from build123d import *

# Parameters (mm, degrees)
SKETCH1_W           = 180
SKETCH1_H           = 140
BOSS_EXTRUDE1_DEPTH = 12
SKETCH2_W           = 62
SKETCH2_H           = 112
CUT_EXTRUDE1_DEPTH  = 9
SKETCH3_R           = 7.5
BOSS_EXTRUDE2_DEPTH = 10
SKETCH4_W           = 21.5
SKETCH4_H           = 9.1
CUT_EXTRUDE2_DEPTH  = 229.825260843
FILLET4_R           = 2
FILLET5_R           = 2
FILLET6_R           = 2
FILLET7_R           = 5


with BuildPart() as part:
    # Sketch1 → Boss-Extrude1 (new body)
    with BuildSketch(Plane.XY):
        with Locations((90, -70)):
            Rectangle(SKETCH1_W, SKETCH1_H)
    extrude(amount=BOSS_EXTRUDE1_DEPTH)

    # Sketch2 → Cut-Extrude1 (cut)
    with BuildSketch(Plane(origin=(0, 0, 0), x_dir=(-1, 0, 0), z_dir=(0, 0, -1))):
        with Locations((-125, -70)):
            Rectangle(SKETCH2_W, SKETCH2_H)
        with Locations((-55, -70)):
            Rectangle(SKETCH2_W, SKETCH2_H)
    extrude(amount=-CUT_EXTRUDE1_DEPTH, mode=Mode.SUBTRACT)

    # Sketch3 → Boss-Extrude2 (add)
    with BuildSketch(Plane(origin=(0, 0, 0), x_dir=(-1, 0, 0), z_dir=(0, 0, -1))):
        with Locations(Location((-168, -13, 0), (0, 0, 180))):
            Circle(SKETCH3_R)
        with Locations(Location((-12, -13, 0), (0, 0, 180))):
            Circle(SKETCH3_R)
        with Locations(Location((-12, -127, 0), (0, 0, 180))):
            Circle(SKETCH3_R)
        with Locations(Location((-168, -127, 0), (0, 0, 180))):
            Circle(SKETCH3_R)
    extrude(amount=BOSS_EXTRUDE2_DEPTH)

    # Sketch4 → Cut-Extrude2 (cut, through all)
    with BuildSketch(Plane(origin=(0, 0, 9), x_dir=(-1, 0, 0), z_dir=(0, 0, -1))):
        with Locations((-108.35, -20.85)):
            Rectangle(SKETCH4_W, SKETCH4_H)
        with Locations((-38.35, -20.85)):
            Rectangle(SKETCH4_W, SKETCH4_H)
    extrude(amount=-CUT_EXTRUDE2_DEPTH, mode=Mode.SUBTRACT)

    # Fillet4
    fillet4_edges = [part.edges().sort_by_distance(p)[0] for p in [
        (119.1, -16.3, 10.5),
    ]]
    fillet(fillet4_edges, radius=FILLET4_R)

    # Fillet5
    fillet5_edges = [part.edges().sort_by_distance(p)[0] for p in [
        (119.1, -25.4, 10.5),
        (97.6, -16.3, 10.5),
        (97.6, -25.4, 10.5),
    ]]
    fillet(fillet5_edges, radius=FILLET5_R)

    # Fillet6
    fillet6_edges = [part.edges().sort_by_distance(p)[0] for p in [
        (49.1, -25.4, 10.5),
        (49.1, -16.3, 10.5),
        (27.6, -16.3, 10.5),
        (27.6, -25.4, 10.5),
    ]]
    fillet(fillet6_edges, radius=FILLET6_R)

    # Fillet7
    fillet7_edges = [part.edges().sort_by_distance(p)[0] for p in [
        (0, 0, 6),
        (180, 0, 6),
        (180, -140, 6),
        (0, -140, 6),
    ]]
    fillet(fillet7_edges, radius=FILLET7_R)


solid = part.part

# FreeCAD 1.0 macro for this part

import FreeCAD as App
import Part
import Sketcher
from FreeCAD import Vector


def edges_at(feature, points):
    """Names of the edges that pass closest to the given points."""
    edges = feature.Shape.Edges
    near = lambda p: min(range(len(edges)), key=lambda i: edges[i].distToShape(Part.Vertex(*p))[0])
    return sorted({f"Edge{near(p) + 1}" for p in points})

doc = App.newDocument("Part")
body = doc.addObject("PartDesign::Body", "Body")

# Sketch on XY plane
sketch1 = body.newObject("Sketcher::SketchObject", "Sketch")
sketch1.AttachmentSupport = (doc.getObject("XY_Plane"), [""])
sketch1.MapMode = "FlatFace"
sketch1.addGeometry([
    Part.LineSegment(Vector(0, 0, 0), Vector(0, -140, 0)),
    Part.LineSegment(Vector(0, -140, 0), Vector(180, -140, 0)),
    Part.LineSegment(Vector(180, -140, 0), Vector(180, 0, 0)),
    Part.LineSegment(Vector(180, 0, 0), Vector(0, 0, 0)),
], False)
sketch1.addConstraint([
    Sketcher.Constraint("Coincident", 0, 2, 1, 1),
    Sketcher.Constraint("Coincident", 1, 2, 2, 1),
    Sketcher.Constraint("Coincident", 2, 2, 3, 1),
    Sketcher.Constraint("Coincident", 3, 2, 0, 1),
    Sketcher.Constraint("Vertical", 0),
    Sketcher.Constraint("Horizontal", 1),
    Sketcher.Constraint("Vertical", 2),
    Sketcher.Constraint("Horizontal", 3),
    Sketcher.Constraint("Coincident", 3, 2, -1, 1),
    Sketcher.Constraint("DistanceX", 1, 1, 1, 2, 180.0),
    Sketcher.Constraint("DistanceY", 0, 2, 0, 1, 140.0),
])
pad1 = body.newObject("PartDesign::Pad", "Pad")
pad1.Profile = sketch1
pad1.Length = 12

# Sketch on XY plane
sketch2 = body.newObject("Sketcher::SketchObject", "Sketch001")
sketch2.AttachmentSupport = (doc.getObject("XY_Plane"), [""])
sketch2.MapMode = "FlatFace"
sketch2.addGeometry([
    Part.LineSegment(Vector(156, -14, 0), Vector(156, -126, 0)),  # 0
    Part.LineSegment(Vector(156, -126, 0), Vector(94, -126, 0)),  # 1
    Part.LineSegment(Vector(94, -126, 0), Vector(94, -14, 0)),  # 2
    Part.LineSegment(Vector(94, -14, 0), Vector(156, -14, 0)),  # 3
    Part.LineSegment(Vector(86, -14, 0), Vector(86, -126, 0)),  # 4
    Part.LineSegment(Vector(86, -126, 0), Vector(24, -126, 0)),  # 5
    Part.LineSegment(Vector(24, -126, 0), Vector(24, -14, 0)),  # 6
    Part.LineSegment(Vector(24, -14, 0), Vector(86, -14, 0)),  # 7
], False)
sketch2.addConstraint([
    Sketcher.Constraint("Coincident", 0, 2, 1, 1),
    Sketcher.Constraint("Coincident", 1, 2, 2, 1),
    Sketcher.Constraint("Coincident", 2, 2, 3, 1),
    Sketcher.Constraint("Coincident", 3, 2, 0, 1),
    Sketcher.Constraint("Coincident", 4, 2, 5, 1),
    Sketcher.Constraint("Coincident", 5, 2, 6, 1),
    Sketcher.Constraint("Coincident", 6, 2, 7, 1),
    Sketcher.Constraint("Coincident", 7, 2, 4, 1),
    Sketcher.Constraint("Vertical", 0),
    Sketcher.Constraint("Horizontal", 1),
    Sketcher.Constraint("Vertical", 2),
    Sketcher.Constraint("Horizontal", 3),
    Sketcher.Constraint("Vertical", 4),
    Sketcher.Constraint("Horizontal", 5),
    Sketcher.Constraint("Vertical", 6),
    Sketcher.Constraint("Horizontal", 7),
    Sketcher.Constraint("Horizontal", 1, 2, 4, 2),
    Sketcher.Constraint("Horizontal", 3, 2, 6, 2),
    Sketcher.Constraint("Equal", 3, 5),
    Sketcher.Constraint("DistanceX", 1, 2, 1, 1, 62.0),
    Sketcher.Constraint("DistanceY", 0, 2, 0, 1, 112.0),
    Sketcher.Constraint("DistanceX", -1, 1, 0, 2, 156.0),
    Sketcher.Constraint("DistanceY", 0, 2, -1, 1, 126.0),
    Sketcher.Constraint("DistanceX", -1, 1, 4, 2, 86.0),
])
pocket1 = body.newObject("PartDesign::Pocket", "Pocket")
pocket1.Profile = sketch2
pocket1.Length = 9
pocket1.Reversed = True

# Sketch on XY plane
sketch3 = body.newObject("Sketcher::SketchObject", "Sketch002")
sketch3.AttachmentSupport = (doc.getObject("XY_Plane"), [""])
sketch3.MapMode = "FlatFace"
sketch3.addGeometry([
    Part.Circle(Vector(168, -13, 0), Vector(0, 0, 1), 8),
    Part.Circle(Vector(12, -13, 0), Vector(0, 0, 1), 8),
    Part.Circle(Vector(12, -127, 0), Vector(0, 0, 1), 8),
    Part.Circle(Vector(168, -127, 0), Vector(0, 0, 1), 8),
], False)
sketch3.addConstraint([
    Sketcher.Constraint("Equal", 0, 1),
    Sketcher.Constraint("Equal", 1, 2),
    Sketcher.Constraint("Equal", 2, 3),
    Sketcher.Constraint("Horizontal", 0, 3, 1, 3),
    Sketcher.Constraint("Horizontal", 2, 3, 3, 3),
    Sketcher.Constraint("Vertical", 1, 3, 2, 3),
    Sketcher.Constraint("Vertical", 0, 3, 3, 3),
    Sketcher.Constraint("Diameter", 0, 15.0),
    Sketcher.Constraint("DistanceX", -1, 1, 0, 3, 168.0),
    Sketcher.Constraint("DistanceY", 0, 3, -1, 1, 13.0),
    Sketcher.Constraint("DistanceX", -1, 1, 1, 3, 12.0),
    Sketcher.Constraint("DistanceY", 2, 3, -1, 1, 127.0),
])
pad2 = body.newObject("PartDesign::Pad", "Pad001")
pad2.Profile = sketch3
pad2.Length = 10
pad2.Reversed = True

# Sketch on XY plane
sketch4 = body.newObject("Sketcher::SketchObject", "Sketch003")
sketch4.AttachmentSupport = (doc.getObject("XY_Plane"), [""])
sketch4.MapMode = "FlatFace"
sketch4.AttachmentOffset = App.Placement(Vector(0, 0, 9), App.Rotation())
sketch4.addGeometry([
    Part.LineSegment(Vector(119, -16, 0), Vector(119, -25, 0)),  # 0
    Part.LineSegment(Vector(119, -25, 0), Vector(98, -25, 0)),  # 1
    Part.LineSegment(Vector(98, -25, 0), Vector(98, -16, 0)),  # 2
    Part.LineSegment(Vector(98, -16, 0), Vector(119, -16, 0)),  # 3
    Part.LineSegment(Vector(49, -16, 0), Vector(49, -25, 0)),  # 4
    Part.LineSegment(Vector(49, -25, 0), Vector(28, -25, 0)),  # 5
    Part.LineSegment(Vector(28, -25, 0), Vector(28, -16, 0)),  # 6
    Part.LineSegment(Vector(28, -16, 0), Vector(49, -16, 0)),  # 7
], False)
sketch4.addConstraint([
    Sketcher.Constraint("Coincident", 0, 2, 1, 1),
    Sketcher.Constraint("Coincident", 1, 2, 2, 1),
    Sketcher.Constraint("Coincident", 2, 2, 3, 1),
    Sketcher.Constraint("Coincident", 3, 2, 0, 1),
    Sketcher.Constraint("Coincident", 4, 2, 5, 1),
    Sketcher.Constraint("Coincident", 5, 2, 6, 1),
    Sketcher.Constraint("Coincident", 6, 2, 7, 1),
    Sketcher.Constraint("Coincident", 7, 2, 4, 1),
    Sketcher.Constraint("Vertical", 0),
    Sketcher.Constraint("Horizontal", 1),
    Sketcher.Constraint("Vertical", 2),
    Sketcher.Constraint("Horizontal", 3),
    Sketcher.Constraint("Vertical", 4),
    Sketcher.Constraint("Horizontal", 5),
    Sketcher.Constraint("Vertical", 6),
    Sketcher.Constraint("Horizontal", 7),
    Sketcher.Constraint("Horizontal", 1, 2, 4, 2),
    Sketcher.Constraint("Horizontal", 3, 2, 6, 2),
    Sketcher.Constraint("Equal", 3, 5),
    Sketcher.Constraint("DistanceX", 1, 2, 1, 1, 21.5),
    Sketcher.Constraint("DistanceY", 0, 2, 0, 1, 9.1),
    Sketcher.Constraint("DistanceX", 4, 2, 0, 2, 70.0),
    Sketcher.Constraint("DistanceX", -1, 1, 0, 2, 119.1),
    Sketcher.Constraint("DistanceY", 0, 2, -1, 1, 25.4),
])
pocket2 = body.newObject("PartDesign::Pocket", "Pocket001")
pocket2.Profile = sketch4
pocket2.Type = "ThroughAll"
pocket2.Reversed = True
doc.recompute()

fillet = body.newObject("PartDesign::Fillet", "Fillet")
fillet.Base = (pocket2, edges_at(pocket2, [(119.1, -16.3, 10.5)]))
fillet.Radius = 2
doc.recompute()

fillet2 = body.newObject("PartDesign::Fillet", "Fillet001")
fillet2.Base = (fillet, edges_at(fillet, [(119.1, -25.4, 10.5), (97.6, -16.3, 10.5), (97.6, -25.4, 10.5)]))
fillet2.Radius = 2
doc.recompute()

fillet3 = body.newObject("PartDesign::Fillet", "Fillet002")
fillet3.Base = (fillet2, edges_at(fillet2, [
    (49.1, -25.4, 10.5),
    (49.1, -16.3, 10.5),
    (27.6, -16.3, 10.5),
    (27.6, -25.4, 10.5),
]))
fillet3.Radius = 2
doc.recompute()

fillet4 = body.newObject("PartDesign::Fillet", "Fillet003")
fillet4.Base = (fillet3, edges_at(fillet3, [
    (0, 0, 6),
    (180, 0, 6),
    (180, -140, 6),
    (0, -140, 6),
]))
fillet4.Radius = 5

doc.recompute()
